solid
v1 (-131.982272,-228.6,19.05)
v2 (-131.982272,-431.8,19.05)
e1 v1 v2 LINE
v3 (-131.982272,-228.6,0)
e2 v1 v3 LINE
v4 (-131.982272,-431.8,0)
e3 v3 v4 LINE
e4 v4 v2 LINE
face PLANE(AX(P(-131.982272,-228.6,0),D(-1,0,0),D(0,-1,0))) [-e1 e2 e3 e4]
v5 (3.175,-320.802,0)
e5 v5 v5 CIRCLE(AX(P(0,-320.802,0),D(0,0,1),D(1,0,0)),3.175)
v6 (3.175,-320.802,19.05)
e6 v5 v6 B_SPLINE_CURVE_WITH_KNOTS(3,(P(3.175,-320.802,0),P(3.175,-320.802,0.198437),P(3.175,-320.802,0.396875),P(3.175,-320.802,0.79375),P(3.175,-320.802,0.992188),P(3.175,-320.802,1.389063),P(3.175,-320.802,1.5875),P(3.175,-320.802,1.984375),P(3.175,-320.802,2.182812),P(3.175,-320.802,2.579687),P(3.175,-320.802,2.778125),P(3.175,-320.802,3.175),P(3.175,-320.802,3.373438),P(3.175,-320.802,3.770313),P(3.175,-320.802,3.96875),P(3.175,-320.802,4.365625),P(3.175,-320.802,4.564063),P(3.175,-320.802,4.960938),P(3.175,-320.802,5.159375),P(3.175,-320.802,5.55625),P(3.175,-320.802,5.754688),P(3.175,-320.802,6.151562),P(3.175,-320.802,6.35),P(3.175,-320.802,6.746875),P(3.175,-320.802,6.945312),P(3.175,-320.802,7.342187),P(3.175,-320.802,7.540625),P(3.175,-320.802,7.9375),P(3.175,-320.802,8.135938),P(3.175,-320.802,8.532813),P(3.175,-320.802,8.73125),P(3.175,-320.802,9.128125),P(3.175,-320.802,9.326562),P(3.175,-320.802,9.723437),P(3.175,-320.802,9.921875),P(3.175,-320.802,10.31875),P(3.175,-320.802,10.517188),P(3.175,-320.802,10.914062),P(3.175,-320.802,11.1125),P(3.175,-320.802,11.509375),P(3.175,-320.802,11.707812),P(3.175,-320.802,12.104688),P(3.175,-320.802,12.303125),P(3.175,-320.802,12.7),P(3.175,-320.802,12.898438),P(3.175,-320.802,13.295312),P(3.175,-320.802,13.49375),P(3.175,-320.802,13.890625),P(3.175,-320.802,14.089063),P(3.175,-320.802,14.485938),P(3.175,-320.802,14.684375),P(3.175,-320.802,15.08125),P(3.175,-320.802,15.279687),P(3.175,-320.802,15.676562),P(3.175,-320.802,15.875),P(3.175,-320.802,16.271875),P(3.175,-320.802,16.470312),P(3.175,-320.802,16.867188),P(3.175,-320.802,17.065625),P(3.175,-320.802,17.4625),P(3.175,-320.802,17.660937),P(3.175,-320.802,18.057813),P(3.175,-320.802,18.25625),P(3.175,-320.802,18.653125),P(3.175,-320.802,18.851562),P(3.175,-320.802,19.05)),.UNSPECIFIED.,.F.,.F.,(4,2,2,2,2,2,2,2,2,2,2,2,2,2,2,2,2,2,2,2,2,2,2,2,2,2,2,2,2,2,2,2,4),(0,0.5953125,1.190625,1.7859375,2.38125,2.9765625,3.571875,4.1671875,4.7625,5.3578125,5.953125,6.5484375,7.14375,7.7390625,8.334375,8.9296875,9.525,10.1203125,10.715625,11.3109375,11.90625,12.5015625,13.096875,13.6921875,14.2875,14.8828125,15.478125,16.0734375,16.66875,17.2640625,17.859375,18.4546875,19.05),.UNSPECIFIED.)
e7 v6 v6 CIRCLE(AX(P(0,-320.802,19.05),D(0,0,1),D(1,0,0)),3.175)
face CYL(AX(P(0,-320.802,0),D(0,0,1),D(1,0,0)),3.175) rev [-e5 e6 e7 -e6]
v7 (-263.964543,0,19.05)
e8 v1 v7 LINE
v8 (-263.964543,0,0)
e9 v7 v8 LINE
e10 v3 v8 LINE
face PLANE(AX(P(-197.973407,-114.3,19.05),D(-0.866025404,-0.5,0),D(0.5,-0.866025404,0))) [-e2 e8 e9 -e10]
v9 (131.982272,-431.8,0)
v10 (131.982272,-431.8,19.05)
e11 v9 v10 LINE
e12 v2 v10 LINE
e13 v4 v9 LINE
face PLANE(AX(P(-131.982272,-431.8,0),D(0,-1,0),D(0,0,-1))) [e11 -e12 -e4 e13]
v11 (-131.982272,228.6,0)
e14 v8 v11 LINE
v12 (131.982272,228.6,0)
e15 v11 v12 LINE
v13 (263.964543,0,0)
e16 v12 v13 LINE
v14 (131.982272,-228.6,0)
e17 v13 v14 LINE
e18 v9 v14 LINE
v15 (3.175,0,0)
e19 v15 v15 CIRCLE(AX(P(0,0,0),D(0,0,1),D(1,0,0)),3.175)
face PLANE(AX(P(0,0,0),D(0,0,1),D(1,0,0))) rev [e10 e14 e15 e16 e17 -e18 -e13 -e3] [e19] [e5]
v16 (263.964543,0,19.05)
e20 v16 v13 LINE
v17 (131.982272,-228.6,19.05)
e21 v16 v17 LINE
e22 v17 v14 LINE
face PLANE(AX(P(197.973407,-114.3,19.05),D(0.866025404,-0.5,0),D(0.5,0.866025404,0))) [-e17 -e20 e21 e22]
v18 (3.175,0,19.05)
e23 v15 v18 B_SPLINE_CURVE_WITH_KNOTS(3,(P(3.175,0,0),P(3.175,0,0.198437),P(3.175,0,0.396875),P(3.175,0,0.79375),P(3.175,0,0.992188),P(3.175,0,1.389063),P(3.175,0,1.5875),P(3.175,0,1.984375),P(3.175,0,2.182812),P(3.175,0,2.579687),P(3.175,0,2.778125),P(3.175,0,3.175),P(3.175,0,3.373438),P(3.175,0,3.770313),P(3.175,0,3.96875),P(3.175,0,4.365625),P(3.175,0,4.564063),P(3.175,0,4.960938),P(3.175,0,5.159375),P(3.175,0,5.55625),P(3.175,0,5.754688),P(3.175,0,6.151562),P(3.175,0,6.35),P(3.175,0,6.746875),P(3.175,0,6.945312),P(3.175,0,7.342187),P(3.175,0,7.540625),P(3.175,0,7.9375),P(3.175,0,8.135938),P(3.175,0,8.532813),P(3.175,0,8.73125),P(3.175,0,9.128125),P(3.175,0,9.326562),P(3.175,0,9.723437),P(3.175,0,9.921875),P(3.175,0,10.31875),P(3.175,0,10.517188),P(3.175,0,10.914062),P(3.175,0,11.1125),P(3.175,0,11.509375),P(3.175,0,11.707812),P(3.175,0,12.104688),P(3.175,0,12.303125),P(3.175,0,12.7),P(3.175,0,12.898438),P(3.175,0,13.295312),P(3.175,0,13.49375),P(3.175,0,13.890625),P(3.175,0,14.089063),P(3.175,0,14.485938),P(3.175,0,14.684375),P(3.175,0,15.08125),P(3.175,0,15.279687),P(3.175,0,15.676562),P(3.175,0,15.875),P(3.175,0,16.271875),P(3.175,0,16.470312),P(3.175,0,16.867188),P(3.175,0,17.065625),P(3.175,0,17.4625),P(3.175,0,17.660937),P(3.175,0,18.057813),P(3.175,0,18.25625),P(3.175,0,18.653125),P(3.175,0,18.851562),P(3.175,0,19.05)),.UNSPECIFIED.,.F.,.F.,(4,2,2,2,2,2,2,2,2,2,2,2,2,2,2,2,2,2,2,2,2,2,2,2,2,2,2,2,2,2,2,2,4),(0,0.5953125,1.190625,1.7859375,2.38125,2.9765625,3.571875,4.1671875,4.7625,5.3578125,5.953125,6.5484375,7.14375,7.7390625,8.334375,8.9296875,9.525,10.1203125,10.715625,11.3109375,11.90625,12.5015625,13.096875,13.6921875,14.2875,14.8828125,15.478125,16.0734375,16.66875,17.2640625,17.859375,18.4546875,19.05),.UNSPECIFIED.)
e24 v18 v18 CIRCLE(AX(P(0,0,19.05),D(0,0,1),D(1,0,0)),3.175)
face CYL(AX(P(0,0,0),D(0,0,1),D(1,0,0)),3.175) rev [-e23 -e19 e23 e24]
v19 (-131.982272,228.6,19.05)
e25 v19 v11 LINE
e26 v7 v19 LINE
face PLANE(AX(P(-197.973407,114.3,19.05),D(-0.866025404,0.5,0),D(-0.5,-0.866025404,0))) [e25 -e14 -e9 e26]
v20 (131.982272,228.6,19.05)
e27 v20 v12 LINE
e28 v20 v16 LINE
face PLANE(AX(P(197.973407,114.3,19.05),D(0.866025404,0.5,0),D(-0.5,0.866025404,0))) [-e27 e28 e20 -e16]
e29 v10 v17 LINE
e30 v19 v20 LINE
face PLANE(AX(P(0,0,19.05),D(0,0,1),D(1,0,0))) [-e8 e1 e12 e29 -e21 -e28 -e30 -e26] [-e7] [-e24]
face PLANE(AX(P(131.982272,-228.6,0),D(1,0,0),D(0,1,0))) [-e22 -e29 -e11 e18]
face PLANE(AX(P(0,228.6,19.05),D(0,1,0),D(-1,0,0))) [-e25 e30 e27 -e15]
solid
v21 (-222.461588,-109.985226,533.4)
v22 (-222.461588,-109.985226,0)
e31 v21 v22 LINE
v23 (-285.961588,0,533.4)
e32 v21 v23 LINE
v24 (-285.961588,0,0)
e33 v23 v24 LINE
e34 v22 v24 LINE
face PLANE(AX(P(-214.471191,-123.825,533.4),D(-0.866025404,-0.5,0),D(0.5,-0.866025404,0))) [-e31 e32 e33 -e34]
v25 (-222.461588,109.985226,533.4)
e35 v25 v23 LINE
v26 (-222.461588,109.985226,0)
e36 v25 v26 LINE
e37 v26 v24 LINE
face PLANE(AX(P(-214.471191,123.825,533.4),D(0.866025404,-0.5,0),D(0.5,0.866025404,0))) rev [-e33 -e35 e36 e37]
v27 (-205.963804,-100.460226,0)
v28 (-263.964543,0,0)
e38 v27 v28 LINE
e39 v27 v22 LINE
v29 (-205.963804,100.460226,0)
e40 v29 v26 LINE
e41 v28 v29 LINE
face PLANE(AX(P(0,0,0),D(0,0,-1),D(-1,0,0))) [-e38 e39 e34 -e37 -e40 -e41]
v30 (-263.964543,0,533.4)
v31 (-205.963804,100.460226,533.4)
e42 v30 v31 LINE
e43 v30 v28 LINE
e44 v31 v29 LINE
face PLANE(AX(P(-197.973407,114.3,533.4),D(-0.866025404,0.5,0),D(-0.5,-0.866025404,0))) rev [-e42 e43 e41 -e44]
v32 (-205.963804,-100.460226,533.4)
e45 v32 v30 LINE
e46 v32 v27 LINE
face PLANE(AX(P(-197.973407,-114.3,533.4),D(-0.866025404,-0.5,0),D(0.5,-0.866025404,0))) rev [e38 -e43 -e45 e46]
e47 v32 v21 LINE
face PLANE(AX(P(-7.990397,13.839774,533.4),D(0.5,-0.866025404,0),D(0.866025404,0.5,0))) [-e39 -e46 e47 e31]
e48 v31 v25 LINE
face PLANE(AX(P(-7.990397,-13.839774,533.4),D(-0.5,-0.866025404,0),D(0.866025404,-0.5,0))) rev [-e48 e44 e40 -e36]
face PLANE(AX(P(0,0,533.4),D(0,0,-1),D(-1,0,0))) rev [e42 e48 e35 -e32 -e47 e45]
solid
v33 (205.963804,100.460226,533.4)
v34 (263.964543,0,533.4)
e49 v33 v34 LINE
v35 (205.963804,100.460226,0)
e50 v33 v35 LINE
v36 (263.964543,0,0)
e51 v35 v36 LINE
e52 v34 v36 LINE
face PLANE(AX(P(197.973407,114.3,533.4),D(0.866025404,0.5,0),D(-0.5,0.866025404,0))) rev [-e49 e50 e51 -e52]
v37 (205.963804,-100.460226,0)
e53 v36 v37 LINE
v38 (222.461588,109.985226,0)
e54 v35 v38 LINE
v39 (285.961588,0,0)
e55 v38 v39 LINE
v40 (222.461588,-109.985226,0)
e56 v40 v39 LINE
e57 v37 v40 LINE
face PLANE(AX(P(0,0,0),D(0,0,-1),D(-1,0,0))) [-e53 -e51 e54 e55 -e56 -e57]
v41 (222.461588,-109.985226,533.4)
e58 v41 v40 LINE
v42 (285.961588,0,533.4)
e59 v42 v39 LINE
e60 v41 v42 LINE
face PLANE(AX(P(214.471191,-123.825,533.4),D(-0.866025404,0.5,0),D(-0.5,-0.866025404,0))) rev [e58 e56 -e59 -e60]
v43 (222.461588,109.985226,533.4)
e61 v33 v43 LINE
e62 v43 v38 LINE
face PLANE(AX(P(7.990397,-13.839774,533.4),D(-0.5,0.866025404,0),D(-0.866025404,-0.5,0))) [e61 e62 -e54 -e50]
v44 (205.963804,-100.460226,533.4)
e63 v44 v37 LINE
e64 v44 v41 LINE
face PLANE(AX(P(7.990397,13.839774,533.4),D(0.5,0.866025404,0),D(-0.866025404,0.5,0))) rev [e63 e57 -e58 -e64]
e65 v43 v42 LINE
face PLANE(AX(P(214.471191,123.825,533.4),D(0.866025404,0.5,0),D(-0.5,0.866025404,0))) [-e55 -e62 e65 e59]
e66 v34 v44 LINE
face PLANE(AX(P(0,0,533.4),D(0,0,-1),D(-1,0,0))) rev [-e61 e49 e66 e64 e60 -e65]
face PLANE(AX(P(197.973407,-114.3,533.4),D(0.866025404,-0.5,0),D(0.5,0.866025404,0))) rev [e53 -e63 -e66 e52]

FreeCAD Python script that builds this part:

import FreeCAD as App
import Part
import Sketcher

V = App.Vector
Q = App.Units.Quantity


def add_polygon(sketch, points):
    """Adds a closed chain of lines whose ends are joined by coincident constraints."""
    first, n = sketch.GeometryCount, len(points)
    for a, b in zip(points, points[1:] + points[:1]):
        sketch.addGeometry(Part.LineSegment(App.Vector(*a, 0), App.Vector(*b, 0)), False)
    for i in range(n):
        sketch.addConstraint(Sketcher.Constraint("Coincident", first + i, 2, first + (i + 1) % n, 1))

doc = App.newDocument("Part")
body = doc.addObject("PartDesign::Body", "Body")

# Sketch on XY plane
sketch1 = body.newObject("Sketcher::SketchObject", "Sketch")
sketch1.AttachmentSupport = (doc.getObject("XY_Plane"), [""])
sketch1.MapMode = "FlatFace"
add_polygon(sketch1, [(131.982272, 228.6), (-131.982272, 228.6), (-263.964543, 0), (-131.982272, -228.6), (131.982272, -228.6), (263.964543, 0)])  # lines 0-5
sketch1.addConstraint(Sketcher.Constraint("Horizontal", 0))
sketch1.addConstraint(Sketcher.Constraint("Horizontal", 3))
sketch1.addConstraint(Sketcher.Constraint("Symmetric", 0, 2, 3, 2, -1, 1))
sketch1.addConstraint(Sketcher.Constraint("Symmetric", 1, 2, 4, 2, -1, 1))
sketch1.addConstraint(Sketcher.Constraint("PointOnObject", 1, 2, -1))
sketch1.addConstraint(Sketcher.Constraint("Parallel", 2, 5))
sketch1.addConstraint(Sketcher.Constraint("Vertical", 0, 2, 2, 2))
sketch1.addConstraint(Sketcher.Constraint("DistanceY", -1, 1, 0, 2, Q("9 in")))
sketch1.addConstraint(Sketcher.Constraint("Angle", 1, Q("-120 deg")))
sketch1.addConstraint(Sketcher.Constraint("DistanceX", 0, 2, 0, 1, Q("263.964543 mm")))
pad1 = body.newObject("PartDesign::Pad", "Pad")
pad1.Profile = sketch1
pad1.Length = Q("0.75 in")

# Sketch on XY plane
sketch2 = body.newObject("Sketcher::SketchObject", "Sketch001")
sketch2.AttachmentSupport = (doc.getObject("XY_Plane"), [""])
sketch2.MapMode = "FlatFace"
sketch2.AttachmentOffset = App.Placement(V(0, 0, 0.75 * 25.4), App.Rotation())
add_polygon(sketch2, [(-131.982272, -228.6), (-131.982272, -431.8), (131.982272, -431.8), (131.982272, -228.6)])  # lines 0-3
sketch2.addConstraint(Sketcher.Constraint("Vertical", 0))
sketch2.addConstraint(Sketcher.Constraint("Horizontal", 1))
sketch2.addConstraint(Sketcher.Constraint("Vertical", 2))
sketch2.addConstraint(Sketcher.Constraint("Horizontal", 3))
sketch2.addConstraint(Sketcher.Constraint("DistanceY", 0, 2, 0, 1, Q("8 in")))
sketch2.addConstraint(Sketcher.Constraint("DistanceY", 0, 2, -1, 1, Q("17 in")))
sketch2.addConstraint(Sketcher.Constraint("DistanceX", 1, 1, 1, 2, Q("263.964543 mm")))
sketch2.addConstraint(Sketcher.Constraint("DistanceX", 0, 2, -1, 1, Q("131.982272 mm")))
pad2 = body.newObject("PartDesign::Pad", "Pad001")
pad2.Profile = sketch2
pad2.Length = Q("0.75 in")
pad2.Reversed = True

# Sketch on XY plane
sketch3 = body.newObject("Sketcher::SketchObject", "Sketch002")
sketch3.AttachmentSupport = (doc.getObject("XY_Plane"), [""])
sketch3.MapMode = "FlatFace"
sketch3.AttachmentOffset = App.Placement(V(0, 0, 0.75 * 25.4), App.Rotation())
sketch3.addGeometry(Part.Circle(V(0, 0, 0), V(0, 0, 1), 3.175), False)
sketch3.addGeometry(Part.Circle(V(0, -320.802, 0), V(0, 0, 1), 3.175), False)
sketch3.addConstraint(Sketcher.Constraint("Coincident", 0, 3, -1, 1))
sketch3.addConstraint(Sketcher.Constraint("Equal", 0, 1))
sketch3.addConstraint(Sketcher.Constraint("PointOnObject", 1, 3, -2))
sketch3.addConstraint(Sketcher.Constraint("Diameter", 0, Q("0.25 in")))
sketch3.addConstraint(Sketcher.Constraint("DistanceY", 1, 3, -1, 1, Q("12.63 in")))
pocket1 = body.newObject("PartDesign::Pocket", "Pocket")
pocket1.Profile = sketch3
pocket1.Type = "ThroughAll"
body2 = doc.addObject("PartDesign::Body", "Body001")
body2.AllowCompound = True

# Sketch on XY plane
sketch4 = body2.newObject("Sketcher::SketchObject", "Sketch003")
sketch4.AttachmentSupport = (doc.getObject("XY_Plane001"), [""])
sketch4.MapMode = "FlatFace"
add_polygon(sketch4, [(-263.964543, 0), (-205.963804, -100.460226), (-222.461588, -109.985226), (-285.961588, 0), (-222.461588, 109.985226), (-205.963804, 100.460226)])  # lines 0-5
add_polygon(sketch4, [(285.961588, 0), (222.461588, -109.985226), (205.963804, -100.460226), (263.964543, 0), (205.963804, 100.460226), (222.461588, 109.985226)])  # lines 6-11
sketch4.addConstraint(Sketcher.Constraint("Symmetric", 3, 2, 6, 2, -1, 1))
sketch4.addConstraint(Sketcher.Constraint("Symmetric", 4, 2, 7, 2, -1, 1))
sketch4.addConstraint(Sketcher.Constraint("Symmetric", 5, 2, 8, 2, -1, 1))
sketch4.addConstraint(Sketcher.Constraint("Symmetric", 0, 2, 9, 2, -1, 1))
sketch4.addConstraint(Sketcher.Constraint("Symmetric", 1, 2, 10, 2, -1, 1))
sketch4.addConstraint(Sketcher.Constraint("Symmetric", 2, 2, 11, 2, -1, 1))
sketch4.addConstraint(Sketcher.Constraint("Symmetric", 1, 2, 6, 2, -2))
sketch4.addConstraint(Sketcher.Constraint("Symmetric", 0, 2, 7, 2, -2))
sketch4.addConstraint(Sketcher.Constraint("PointOnObject", 2, 2, -1))
sketch4.addConstraint(Sketcher.Constraint("PointOnObject", 5, 2, -1))
sketch4.addConstraint(Sketcher.Constraint("Perpendicular", 0, 1))
sketch4.addConstraint(Sketcher.Constraint("Perpendicular", 1, 2))
sketch4.addConstraint(Sketcher.Constraint("Distance", 2, Q("5 in")))
sketch4.addConstraint(Sketcher.Constraint("Angle", 0, Q("-60 deg")))
sketch4.addConstraint(Sketcher.Constraint("Distance", 1, Q("0.75 in")))
sketch4.addConstraint(Sketcher.Constraint("DistanceX", 1, 2, -1, 1, Q("222.461588 mm")))
pad3 = body2.newObject("PartDesign::Pad", "Pad002")
pad3.Profile = sketch4
pad3.Length = Q("21 in")

doc.recompute()
